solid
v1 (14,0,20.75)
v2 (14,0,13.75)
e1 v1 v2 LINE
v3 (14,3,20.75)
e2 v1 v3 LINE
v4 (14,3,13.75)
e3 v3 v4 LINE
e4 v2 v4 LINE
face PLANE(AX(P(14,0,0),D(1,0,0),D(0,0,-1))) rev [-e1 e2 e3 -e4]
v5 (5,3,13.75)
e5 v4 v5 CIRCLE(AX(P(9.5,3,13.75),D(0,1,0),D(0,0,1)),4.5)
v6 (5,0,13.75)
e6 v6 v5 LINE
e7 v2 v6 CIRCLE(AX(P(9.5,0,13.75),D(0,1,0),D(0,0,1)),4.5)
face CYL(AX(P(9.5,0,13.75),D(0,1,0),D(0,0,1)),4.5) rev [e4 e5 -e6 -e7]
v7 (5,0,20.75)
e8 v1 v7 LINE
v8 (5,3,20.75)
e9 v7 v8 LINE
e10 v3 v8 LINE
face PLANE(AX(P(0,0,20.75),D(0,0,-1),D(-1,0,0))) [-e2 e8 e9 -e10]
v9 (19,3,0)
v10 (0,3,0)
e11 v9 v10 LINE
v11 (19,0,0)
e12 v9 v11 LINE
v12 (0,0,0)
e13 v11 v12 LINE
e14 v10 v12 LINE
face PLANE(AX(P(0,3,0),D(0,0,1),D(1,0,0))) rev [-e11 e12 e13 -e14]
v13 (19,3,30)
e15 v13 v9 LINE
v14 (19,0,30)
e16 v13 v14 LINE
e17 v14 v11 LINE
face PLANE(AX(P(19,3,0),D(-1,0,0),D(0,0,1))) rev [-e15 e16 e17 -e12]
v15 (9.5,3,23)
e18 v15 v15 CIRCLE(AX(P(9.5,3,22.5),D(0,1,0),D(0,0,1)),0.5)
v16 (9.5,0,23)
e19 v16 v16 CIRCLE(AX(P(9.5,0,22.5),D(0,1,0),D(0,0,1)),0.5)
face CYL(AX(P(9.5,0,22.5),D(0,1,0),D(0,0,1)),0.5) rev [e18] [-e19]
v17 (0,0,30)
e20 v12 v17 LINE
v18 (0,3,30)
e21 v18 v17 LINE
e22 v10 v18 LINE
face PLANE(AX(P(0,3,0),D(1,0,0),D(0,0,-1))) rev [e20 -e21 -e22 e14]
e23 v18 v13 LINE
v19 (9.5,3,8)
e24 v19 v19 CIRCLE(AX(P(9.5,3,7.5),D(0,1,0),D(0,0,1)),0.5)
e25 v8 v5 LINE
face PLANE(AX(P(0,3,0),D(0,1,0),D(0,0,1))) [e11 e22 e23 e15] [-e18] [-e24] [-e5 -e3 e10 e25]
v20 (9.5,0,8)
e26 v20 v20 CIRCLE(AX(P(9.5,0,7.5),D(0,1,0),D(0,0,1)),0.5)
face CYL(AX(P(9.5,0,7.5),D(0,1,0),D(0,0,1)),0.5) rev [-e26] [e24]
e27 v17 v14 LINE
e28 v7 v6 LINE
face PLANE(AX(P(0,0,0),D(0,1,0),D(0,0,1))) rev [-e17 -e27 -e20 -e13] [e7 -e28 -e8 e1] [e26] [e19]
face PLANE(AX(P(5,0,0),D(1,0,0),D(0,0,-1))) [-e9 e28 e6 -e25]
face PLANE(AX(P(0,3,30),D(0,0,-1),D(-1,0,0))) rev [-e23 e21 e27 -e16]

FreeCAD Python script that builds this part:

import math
import FreeCAD as App
import Part
import Sketcher


def add_polygon(sketch, points):
    """Adds a closed chain of lines whose ends are joined by coincident constraints."""
    first, n = sketch.GeometryCount, len(points)
    for a, b in zip(points, points[1:] + points[:1]):
        sketch.addGeometry(Part.LineSegment(App.Vector(*a, 0), App.Vector(*b, 0)), False)
    for i in range(n):
        sketch.addConstraint(Sketcher.Constraint("Coincident", first + i, 2, first + (i + 1) % n, 1))

doc = App.newDocument("Part")
body = doc.addObject("PartDesign::Body", "Body")

# Sketch on XZ plane
sketch1 = doc.addObject("Sketcher::SketchObject", "Sketch")
body.addObject(sketch1)
sketch1.AttachmentSupport = (doc.XZ_Plane, [""])
sketch1.MapMode = "FlatFace"
add_polygon(sketch1, [(0, 0), (0, 30), (19, 30), (19, 0)])  # lines 0-3
sketch1.addConstraint([
    Sketcher.Constraint("Vertical", 0),
    Sketcher.Constraint("Horizontal", 1),
    Sketcher.Constraint("Vertical", 2),
    Sketcher.Constraint("Horizontal", 3),
    Sketcher.Constraint("Coincident", 3, 2, -1, 1),
    Sketcher.Constraint("DistanceX", 1, 1, 1, 2, 19.0),
    Sketcher.Constraint("DistanceY", 0, 1, 0, 2, 30.0),
])
pad1 = doc.addObject("PartDesign::Pad", "Pad")
body.addObject(pad1)
pad1.Profile = sketch1
pad1.Length = 3
pad1.Reversed = True

# Sketch on XZ plane
sketch2 = doc.addObject("Sketcher::SketchObject", "Sketch001")
body.addObject(sketch2)
sketch2.AttachmentSupport = (doc.XZ_Plane, [""])
sketch2.MapMode = "FlatFace"
sketch2.AttachmentOffset = App.Placement(App.Vector(0, 0, -3), App.Rotation())
sketch2.addGeometry([
    Part.LineSegment(App.Vector(5, 20.75, 0), App.Vector(14, 20.75, 0)),  # 0
    Part.LineSegment(App.Vector(14, 20.75, 0), App.Vector(14, 13.75, 0)),  # 1
    Part.ArcOfCircle(Part.Circle(App.Vector(9.5, 13.75, 0), App.Vector(0, 0, 1), 4.5), math.radians(180), math.radians(360)),  # 2
    Part.LineSegment(App.Vector(5, 13.75, 0), App.Vector(5, 20.75, 0)),  # 3
    Part.Circle(App.Vector(9.5, 22.5, 0), App.Vector(0, 0, 1), 0.5),  # 4
    Part.Circle(App.Vector(9.5, 7.5, 0), App.Vector(0, 0, 1), 0.5),  # 5
], False)
sketch2.addConstraint([
    Sketcher.Constraint("Coincident", 0, 2, 1, 1),
    Sketcher.Constraint("Tangent", 1, 2, 2, 2),
    Sketcher.Constraint("Tangent", 2, 1, 3, 1),
    Sketcher.Constraint("Coincident", 3, 2, 0, 1),
    Sketcher.Constraint("Horizontal", 0),
    Sketcher.Constraint("Vertical", 1),
    Sketcher.Constraint("Vertical", 3),
    Sketcher.Constraint("Equal", 4, 5),
    Sketcher.Constraint("Vertical", 2, 3, 4, 3),
    Sketcher.Constraint("Vertical", 4, 3, 5, 3),
    Sketcher.Constraint("Diameter", 4, 1.0),
    Sketcher.Constraint("Radius", 2, 4.5),
    Sketcher.Constraint("DistanceY", 1, 2, 1, 1, 7.0),
    Sketcher.Constraint("DistanceX", -1, 1, 0, 2, 14.0),
    Sketcher.Constraint("DistanceY", 5, 3, 4, 3, 15.0),
    Sketcher.Constraint("DistanceY", -1, 1, 4, 3, 22.5),
    Sketcher.Constraint("DistanceY", -1, 1, 2, 3, 13.75),
])
pocket1 = doc.addObject("PartDesign::Pocket", "Pocket")
body.addObject(pocket1)
pocket1.Profile = sketch2
pocket1.Type = "ThroughAll"
pocket1.Reversed = True

doc.recompute()
